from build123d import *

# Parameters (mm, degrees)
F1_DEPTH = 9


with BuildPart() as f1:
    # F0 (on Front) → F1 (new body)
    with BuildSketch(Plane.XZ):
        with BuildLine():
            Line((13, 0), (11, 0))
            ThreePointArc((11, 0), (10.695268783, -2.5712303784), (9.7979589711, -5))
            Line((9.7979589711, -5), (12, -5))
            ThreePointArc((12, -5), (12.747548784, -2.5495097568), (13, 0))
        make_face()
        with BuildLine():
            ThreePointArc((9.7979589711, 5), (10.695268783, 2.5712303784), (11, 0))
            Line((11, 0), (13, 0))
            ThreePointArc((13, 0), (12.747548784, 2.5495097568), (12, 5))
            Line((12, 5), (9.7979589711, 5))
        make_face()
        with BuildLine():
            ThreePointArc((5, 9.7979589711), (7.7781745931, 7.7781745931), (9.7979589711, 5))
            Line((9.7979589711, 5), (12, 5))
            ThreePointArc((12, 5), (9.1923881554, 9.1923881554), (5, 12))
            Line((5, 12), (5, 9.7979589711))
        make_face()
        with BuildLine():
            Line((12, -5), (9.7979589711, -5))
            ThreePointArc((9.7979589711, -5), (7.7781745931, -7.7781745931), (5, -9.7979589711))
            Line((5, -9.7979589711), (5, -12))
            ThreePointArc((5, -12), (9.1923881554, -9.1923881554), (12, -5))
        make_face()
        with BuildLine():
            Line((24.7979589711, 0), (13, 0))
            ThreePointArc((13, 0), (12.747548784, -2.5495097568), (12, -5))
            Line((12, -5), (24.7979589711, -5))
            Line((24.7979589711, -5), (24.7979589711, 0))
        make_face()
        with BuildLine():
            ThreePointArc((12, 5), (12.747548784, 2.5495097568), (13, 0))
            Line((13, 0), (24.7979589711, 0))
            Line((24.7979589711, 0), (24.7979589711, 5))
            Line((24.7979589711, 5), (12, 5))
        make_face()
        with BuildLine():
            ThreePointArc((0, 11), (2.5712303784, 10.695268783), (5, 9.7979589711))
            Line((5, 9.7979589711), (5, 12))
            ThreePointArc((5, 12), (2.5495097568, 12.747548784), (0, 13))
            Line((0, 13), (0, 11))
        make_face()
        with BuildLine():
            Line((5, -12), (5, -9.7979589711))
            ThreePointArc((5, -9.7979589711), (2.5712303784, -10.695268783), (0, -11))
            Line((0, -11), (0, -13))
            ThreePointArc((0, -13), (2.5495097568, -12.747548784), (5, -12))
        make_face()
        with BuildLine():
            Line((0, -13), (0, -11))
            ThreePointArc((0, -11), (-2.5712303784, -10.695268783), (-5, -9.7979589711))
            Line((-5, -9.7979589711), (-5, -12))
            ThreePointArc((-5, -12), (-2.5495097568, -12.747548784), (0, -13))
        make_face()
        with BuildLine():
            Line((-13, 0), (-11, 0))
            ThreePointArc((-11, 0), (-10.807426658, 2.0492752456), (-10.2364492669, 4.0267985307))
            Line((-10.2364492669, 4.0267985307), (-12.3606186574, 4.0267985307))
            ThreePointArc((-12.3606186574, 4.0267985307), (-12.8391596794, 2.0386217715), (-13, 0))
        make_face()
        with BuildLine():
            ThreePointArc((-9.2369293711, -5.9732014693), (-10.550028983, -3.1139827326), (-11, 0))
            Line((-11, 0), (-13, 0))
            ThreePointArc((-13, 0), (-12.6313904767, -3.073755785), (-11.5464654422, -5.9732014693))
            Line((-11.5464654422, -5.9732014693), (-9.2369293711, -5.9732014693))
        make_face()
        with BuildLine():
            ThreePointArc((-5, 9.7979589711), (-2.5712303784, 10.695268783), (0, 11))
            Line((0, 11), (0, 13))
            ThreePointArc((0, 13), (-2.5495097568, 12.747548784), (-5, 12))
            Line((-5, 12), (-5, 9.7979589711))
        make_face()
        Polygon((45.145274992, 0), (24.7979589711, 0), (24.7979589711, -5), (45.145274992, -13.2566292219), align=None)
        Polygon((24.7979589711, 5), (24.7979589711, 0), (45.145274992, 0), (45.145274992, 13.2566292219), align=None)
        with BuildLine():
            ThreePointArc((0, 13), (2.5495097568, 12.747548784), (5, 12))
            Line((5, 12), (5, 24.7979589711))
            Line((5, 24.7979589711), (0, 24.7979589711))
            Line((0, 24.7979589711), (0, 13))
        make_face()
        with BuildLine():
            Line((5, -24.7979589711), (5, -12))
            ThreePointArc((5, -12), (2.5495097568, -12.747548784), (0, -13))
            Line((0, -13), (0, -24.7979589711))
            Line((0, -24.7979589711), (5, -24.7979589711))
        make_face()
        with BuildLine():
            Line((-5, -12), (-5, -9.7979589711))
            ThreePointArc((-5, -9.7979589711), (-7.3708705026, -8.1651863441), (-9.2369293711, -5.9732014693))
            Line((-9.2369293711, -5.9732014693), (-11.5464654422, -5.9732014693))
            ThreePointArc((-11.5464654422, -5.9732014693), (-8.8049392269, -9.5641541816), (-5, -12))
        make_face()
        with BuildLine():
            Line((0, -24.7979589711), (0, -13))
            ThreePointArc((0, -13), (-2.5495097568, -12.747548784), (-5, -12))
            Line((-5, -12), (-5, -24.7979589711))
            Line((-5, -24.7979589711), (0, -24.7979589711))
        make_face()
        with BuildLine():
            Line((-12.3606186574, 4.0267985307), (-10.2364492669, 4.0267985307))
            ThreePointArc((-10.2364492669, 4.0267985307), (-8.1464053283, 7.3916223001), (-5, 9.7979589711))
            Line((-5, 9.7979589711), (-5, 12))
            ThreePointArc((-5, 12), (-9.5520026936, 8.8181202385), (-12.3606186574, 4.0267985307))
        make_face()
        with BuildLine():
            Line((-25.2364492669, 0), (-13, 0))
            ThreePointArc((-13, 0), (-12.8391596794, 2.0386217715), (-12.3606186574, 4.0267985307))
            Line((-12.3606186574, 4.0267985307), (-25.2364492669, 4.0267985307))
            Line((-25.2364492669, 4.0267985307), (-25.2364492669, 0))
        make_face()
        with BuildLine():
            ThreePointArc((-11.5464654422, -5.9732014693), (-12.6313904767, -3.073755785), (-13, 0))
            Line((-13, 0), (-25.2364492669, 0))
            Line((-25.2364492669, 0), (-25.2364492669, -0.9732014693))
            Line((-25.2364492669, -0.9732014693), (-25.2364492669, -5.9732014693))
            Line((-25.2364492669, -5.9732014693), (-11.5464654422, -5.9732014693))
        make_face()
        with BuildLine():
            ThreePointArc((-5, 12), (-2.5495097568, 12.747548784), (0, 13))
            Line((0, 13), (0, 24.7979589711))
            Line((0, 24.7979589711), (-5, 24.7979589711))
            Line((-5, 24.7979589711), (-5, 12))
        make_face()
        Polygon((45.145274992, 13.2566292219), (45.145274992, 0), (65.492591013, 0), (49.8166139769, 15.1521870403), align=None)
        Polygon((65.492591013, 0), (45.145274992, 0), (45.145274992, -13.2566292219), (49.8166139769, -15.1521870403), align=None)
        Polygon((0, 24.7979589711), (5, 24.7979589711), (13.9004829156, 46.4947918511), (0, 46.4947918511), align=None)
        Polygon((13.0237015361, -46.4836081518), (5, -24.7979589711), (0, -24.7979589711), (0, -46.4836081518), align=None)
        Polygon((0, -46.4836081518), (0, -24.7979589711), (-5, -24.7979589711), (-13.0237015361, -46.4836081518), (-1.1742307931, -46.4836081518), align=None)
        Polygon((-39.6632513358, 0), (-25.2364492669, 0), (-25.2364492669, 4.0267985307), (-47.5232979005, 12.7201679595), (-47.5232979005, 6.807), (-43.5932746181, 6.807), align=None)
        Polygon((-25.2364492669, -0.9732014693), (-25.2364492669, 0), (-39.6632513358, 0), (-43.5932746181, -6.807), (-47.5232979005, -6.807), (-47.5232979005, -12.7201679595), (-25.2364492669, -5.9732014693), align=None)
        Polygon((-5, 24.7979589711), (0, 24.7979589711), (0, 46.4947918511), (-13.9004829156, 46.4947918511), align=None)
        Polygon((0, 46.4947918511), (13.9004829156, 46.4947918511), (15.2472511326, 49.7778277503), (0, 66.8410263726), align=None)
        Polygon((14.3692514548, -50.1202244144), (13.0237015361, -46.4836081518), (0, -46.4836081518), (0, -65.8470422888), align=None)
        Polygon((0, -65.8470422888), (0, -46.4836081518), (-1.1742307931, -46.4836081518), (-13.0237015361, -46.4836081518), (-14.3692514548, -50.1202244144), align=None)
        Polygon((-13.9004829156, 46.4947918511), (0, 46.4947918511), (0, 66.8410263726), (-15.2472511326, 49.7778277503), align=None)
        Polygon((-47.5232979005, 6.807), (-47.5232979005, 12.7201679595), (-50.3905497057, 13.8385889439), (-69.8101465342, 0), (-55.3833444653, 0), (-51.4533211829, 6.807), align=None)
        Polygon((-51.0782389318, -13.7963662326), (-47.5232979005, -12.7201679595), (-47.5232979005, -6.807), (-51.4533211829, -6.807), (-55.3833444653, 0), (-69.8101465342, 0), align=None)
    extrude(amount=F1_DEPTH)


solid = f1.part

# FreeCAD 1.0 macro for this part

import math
import FreeCAD as App
import Part
import Sketcher
from FreeCAD import Vector
Q = App.Units.Quantity


def add_polygon(sketch, points):
    """Adds a closed chain of lines whose ends are joined by coincident constraints."""
    first, n = sketch.GeometryCount, len(points)
    for a, b in zip(points, points[1:] + points[:1]):
        sketch.addGeometry(Part.LineSegment(App.Vector(*a, 0), App.Vector(*b, 0)), False)
    for i in range(n):
        sketch.addConstraint(Sketcher.Constraint("Coincident", first + i, 2, first + (i + 1) % n, 1))

doc = App.newDocument("Part")
body = doc.addObject("PartDesign::Body", "Body")

sketch1 = doc.addObject("Sketcher::SketchObject", "Sketch")
body.addObject(sketch1)
sketch1.AttachmentSupport = (doc.XZ_Plane, [""])
sketch1.MapMode = "FlatFace"
sketch1.addGeometry(Part.ArcOfCircle(Part.Circle(Vector(0, 0, 0), Vector(0, 0, 1), 13), math.radians(-153), math.radians(-113)), False)
sketch1.addGeometry(Part.LineSegment(Vector(-5, -12, 0), Vector(-5, -24.8, 0)), False)
sketch1.addGeometry(Part.LineSegment(Vector(-5, -24.8, 0), Vector(-13, -46.5, 0)), False)
sketch1.addGeometry(Part.LineSegment(Vector(-13, -46.5, 0), Vector(-14.4, -50.1, 0)), False)
sketch1.addGeometry(Part.LineSegment(Vector(-14.4, -50.1, 0), Vector(0, -65.8, 0)), False)
sketch1.addGeometry(Part.LineSegment(Vector(0, -65.8, 0), Vector(14.4, -50.1, 0)), False)
sketch1.addGeometry(Part.LineSegment(Vector(14.4, -50.1, 0), Vector(13, -46.5, 0)), False)
sketch1.addGeometry(Part.LineSegment(Vector(13, -46.5, 0), Vector(5, -24.8, 0)), False)
sketch1.addGeometry(Part.LineSegment(Vector(5, -24.8, 0), Vector(5, -12, 0)), False)
sketch1.addGeometry(Part.ArcOfCircle(Part.Circle(Vector(0, 0, 0), Vector(0, 0, 1), 13), math.radians(-67), math.radians(-23)), False)
sketch1.addGeometry(Part.LineSegment(Vector(12, -5, 0), Vector(24.8, -5, 0)), False)
sketch1.addGeometry(Part.LineSegment(Vector(24.8, -5, 0), Vector(45.1, -13.3, 0)), False)
sketch1.addGeometry(Part.LineSegment(Vector(45.1, -13.3, 0), Vector(49.8, -15.2, 0)), False)
sketch1.addGeometry(Part.LineSegment(Vector(49.8, -15.2, 0), Vector(65.5, 0, 0)), False)
sketch1.addGeometry(Part.LineSegment(Vector(65.5, 0, 0), Vector(49.8, 15.2, 0)), False)
sketch1.addGeometry(Part.LineSegment(Vector(49.8, 15.2, 0), Vector(45.1, 13.3, 0)), False)
sketch1.addGeometry(Part.LineSegment(Vector(45.1, 13.3, 0), Vector(24.8, 5, 0)), False)
sketch1.addGeometry(Part.LineSegment(Vector(24.8, 5, 0), Vector(12, 5, 0)), False)
sketch1.addGeometry(Part.ArcOfCircle(Part.Circle(Vector(0, 0, 0), Vector(0, 0, 1), 13), math.radians(23), math.radians(67)), False)
sketch1.addGeometry(Part.LineSegment(Vector(5, 12, 0), Vector(5, 24.8, 0)), False)
sketch1.addGeometry(Part.LineSegment(Vector(5, 24.8, 0), Vector(13.9, 46.5, 0)), False)
sketch1.addGeometry(Part.LineSegment(Vector(13.9, 46.5, 0), Vector(15.2, 49.8, 0)), False)
sketch1.addGeometry(Part.LineSegment(Vector(15.2, 49.8, 0), Vector(0, 66.8, 0)), False)
sketch1.addGeometry(Part.LineSegment(Vector(0, 66.8, 0), Vector(-15.2, 49.8, 0)), False)
sketch1.addGeometry(Part.LineSegment(Vector(-15.2, 49.8, 0), Vector(-13.9, 46.5, 0)), False)
sketch1.addGeometry(Part.LineSegment(Vector(-13.9, 46.5, 0), Vector(-5, 24.8, 0)), False)
sketch1.addGeometry(Part.LineSegment(Vector(-5, 24.8, 0), Vector(-5, 12, 0)), False)
sketch1.addGeometry(Part.ArcOfCircle(Part.Circle(Vector(0, 0, 0), Vector(0, 0, 1), 13), math.radians(113), math.radians(162)), False)
sketch1.addGeometry(Part.LineSegment(Vector(-12.4, 4, 0), Vector(-25.2, 4, 0)), False)
sketch1.addGeometry(Part.LineSegment(Vector(-25.2, 4, 0), Vector(-50.4, 13.8, 0)), False)
sketch1.addGeometry(Part.LineSegment(Vector(-50.4, 13.8, 0), Vector(-69.8, 0, 0)), False)
sketch1.addGeometry(Part.LineSegment(Vector(-69.8, 0, 0), Vector(-51.1, -13.8, 0)), False)
sketch1.addGeometry(Part.LineSegment(Vector(-51.1, -13.8, 0), Vector(-47.5, -12.7, 0)), False)
sketch1.addGeometry(Part.LineSegment(Vector(-47.5, -12.7, 0), Vector(-25.2, -6, 0)), False)
sketch1.addGeometry(Part.LineSegment(Vector(-25.2, -6, 0), Vector(-11.5, -6, 0)), False)
sketch1.addGeometry(Part.ArcOfCircle(Part.Circle(Vector(0, 0, 0), Vector(0, 0, 1), 11), math.radians(-27), math.radians(0)), False)
sketch1.addGeometry(Part.ArcOfCircle(Part.Circle(Vector(0, 0, 0), Vector(0, 0, 1), 11), math.radians(-63), math.radians(-27)), False)
sketch1.addGeometry(Part.ArcOfCircle(Part.Circle(Vector(0, 0, 0), Vector(0, 0, 1), 11), math.radians(-90), math.radians(-63)), False)
sketch1.addGeometry(Part.ArcOfCircle(Part.Circle(Vector(0, 0, 0), Vector(0, 0, 1), 11), math.radians(-117), math.radians(-90)), False)
sketch1.addGeometry(Part.ArcOfCircle(Part.Circle(Vector(0, 0, 0), Vector(0, 0, 1), 11), math.radians(-147), math.radians(-117)), False)
sketch1.addGeometry(Part.ArcOfCircle(Part.Circle(Vector(0, 0, 0), Vector(0, 0, 1), 11), math.radians(180), math.radians(213)), False)
sketch1.addGeometry(Part.ArcOfCircle(Part.Circle(Vector(0, 0, 0), Vector(0, 0, 1), 11), math.radians(159), math.radians(180)), False)
sketch1.addGeometry(Part.ArcOfCircle(Part.Circle(Vector(0, 0, 0), Vector(0, 0, 1), 11), math.radians(117), math.radians(159)), False)
sketch1.addGeometry(Part.ArcOfCircle(Part.Circle(Vector(0, 0, 0), Vector(0, 0, 1), 11), math.radians(90), math.radians(117)), False)
sketch1.addGeometry(Part.ArcOfCircle(Part.Circle(Vector(0, 0, 0), Vector(0, 0, 1), 11), math.radians(63), math.radians(90)), False)
sketch1.addGeometry(Part.ArcOfCircle(Part.Circle(Vector(0, 0, 0), Vector(0, 0, 1), 11), math.radians(27), math.radians(63)), False)
sketch1.addGeometry(Part.ArcOfCircle(Part.Circle(Vector(0, 0, 0), Vector(0, 0, 1), 11), math.radians(0), math.radians(27)), False)
add_polygon(sketch1, [(-55.4, 0), (-51.5, 6.8), (-43.6, 6.8), (-39.7, 0), (-43.6, -6.8), (-51.5, -6.8)])
sketch1.addConstraint(Sketcher.Constraint("Coincident", 0, 2, 1, 1))
sketch1.addConstraint(Sketcher.Constraint("Coincident", 1, 2, 2, 1))
sketch1.addConstraint(Sketcher.Constraint("Coincident", 2, 2, 3, 1))
sketch1.addConstraint(Sketcher.Constraint("Coincident", 3, 2, 4, 1))
sketch1.addConstraint(Sketcher.Constraint("Coincident", 4, 2, 5, 1))
sketch1.addConstraint(Sketcher.Constraint("Coincident", 5, 2, 6, 1))
sketch1.addConstraint(Sketcher.Constraint("Coincident", 6, 2, 7, 1))
sketch1.addConstraint(Sketcher.Constraint("Coincident", 7, 2, 8, 1))
sketch1.addConstraint(Sketcher.Constraint("Coincident", 8, 2, 9, 1))
sketch1.addConstraint(Sketcher.Constraint("Coincident", 9, 2, 10, 1))
sketch1.addConstraint(Sketcher.Constraint("Coincident", 10, 2, 11, 1))
sketch1.addConstraint(Sketcher.Constraint("Coincident", 11, 2, 12, 1))
sketch1.addConstraint(Sketcher.Constraint("Coincident", 12, 2, 13, 1))
sketch1.addConstraint(Sketcher.Constraint("Coincident", 13, 2, 14, 1))
sketch1.addConstraint(Sketcher.Constraint("Coincident", 14, 2, 15, 1))
sketch1.addConstraint(Sketcher.Constraint("Coincident", 15, 2, 16, 1))
sketch1.addConstraint(Sketcher.Constraint("Coincident", 16, 2, 17, 1))
sketch1.addConstraint(Sketcher.Constraint("Coincident", 17, 2, 18, 1))
sketch1.addConstraint(Sketcher.Constraint("Coincident", 18, 2, 19, 1))
sketch1.addConstraint(Sketcher.Constraint("Coincident", 19, 2, 20, 1))
sketch1.addConstraint(Sketcher.Constraint("Coincident", 20, 2, 21, 1))
sketch1.addConstraint(Sketcher.Constraint("Coincident", 21, 2, 22, 1))
sketch1.addConstraint(Sketcher.Constraint("Coincident", 22, 2, 23, 1))
sketch1.addConstraint(Sketcher.Constraint("Coincident", 23, 2, 24, 1))
sketch1.addConstraint(Sketcher.Constraint("Coincident", 24, 2, 25, 1))
sketch1.addConstraint(Sketcher.Constraint("Coincident", 25, 2, 26, 1))
sketch1.addConstraint(Sketcher.Constraint("Coincident", 26, 2, 27, 1))
sketch1.addConstraint(Sketcher.Constraint("Coincident", 27, 2, 28, 1))
sketch1.addConstraint(Sketcher.Constraint("Coincident", 28, 2, 29, 1))
sketch1.addConstraint(Sketcher.Constraint("Coincident", 29, 2, 30, 1))
sketch1.addConstraint(Sketcher.Constraint("Coincident", 30, 2, 31, 1))
sketch1.addConstraint(Sketcher.Constraint("Coincident", 31, 2, 32, 1))
sketch1.addConstraint(Sketcher.Constraint("Coincident", 32, 2, 33, 1))
sketch1.addConstraint(Sketcher.Constraint("Coincident", 33, 2, 34, 1))
sketch1.addConstraint(Sketcher.Constraint("Coincident", 34, 2, 0, 1))
sketch1.addConstraint(Sketcher.Constraint("Tangent", 35, 1, 36, 2))
sketch1.addConstraint(Sketcher.Constraint("Tangent", 36, 1, 37, 2))
sketch1.addConstraint(Sketcher.Constraint("Tangent", 37, 1, 38, 2))
sketch1.addConstraint(Sketcher.Constraint("Tangent", 38, 1, 39, 2))
sketch1.addConstraint(Sketcher.Constraint("Tangent", 39, 1, 40, 2))
sketch1.addConstraint(Sketcher.Constraint("Tangent", 40, 1, 41, 2))
sketch1.addConstraint(Sketcher.Constraint("Tangent", 41, 1, 42, 2))
sketch1.addConstraint(Sketcher.Constraint("Tangent", 42, 1, 43, 2))
sketch1.addConstraint(Sketcher.Constraint("Tangent", 43, 1, 44, 2))
sketch1.addConstraint(Sketcher.Constraint("Tangent", 44, 1, 45, 2))
sketch1.addConstraint(Sketcher.Constraint("Tangent", 45, 1, 46, 2))
sketch1.addConstraint(Sketcher.Constraint("Tangent", 46, 1, 35, 2))
sketch1.addConstraint(Sketcher.Constraint("Vertical", 1))
sketch1.addConstraint(Sketcher.Constraint("Vertical", 8))
sketch1.addConstraint(Sketcher.Constraint("Horizontal", 10))
sketch1.addConstraint(Sketcher.Constraint("Horizontal", 17))
sketch1.addConstraint(Sketcher.Constraint("Vertical", 19))
sketch1.addConstraint(Sketcher.Constraint("Vertical", 26))
sketch1.addConstraint(Sketcher.Constraint("Horizontal", 28))
sketch1.addConstraint(Sketcher.Constraint("Horizontal", 34))
sketch1.addConstraint(Sketcher.Constraint("Horizontal", 48))
sketch1.addConstraint(Sketcher.Constraint("Horizontal", 51))
sketch1.addConstraint(Sketcher.Constraint("Coincident", 0, 3, -1, 1))
sketch1.addConstraint(Sketcher.Constraint("Coincident", 9, 3, -1, 1))
sketch1.addConstraint(Sketcher.Constraint("Coincident", 18, 3, -1, 1))
sketch1.addConstraint(Sketcher.Constraint("Coincident", 27, 3, -1, 1))
sketch1.addConstraint(Sketcher.Constraint("Coincident", 35, 3, -1, 1))
sketch1.addConstraint(Sketcher.Constraint("Coincident", 37, 3, -1, 1))
sketch1.addConstraint(Sketcher.Constraint("Coincident", 39, 3, -1, 1))
sketch1.addConstraint(Sketcher.Constraint("Coincident", 41, 3, -1, 1))
sketch1.addConstraint(Sketcher.Constraint("Coincident", 43, 3, -1, 1))
sketch1.addConstraint(Sketcher.Constraint("Equal", 0, 9))
sketch1.addConstraint(Sketcher.Constraint("Equal", 9, 18))
sketch1.addConstraint(Sketcher.Constraint("Equal", 18, 27))
sketch1.addConstraint(Sketcher.Constraint("Equal", 43, 44))
sketch1.addConstraint(Sketcher.Constraint("Symmetric", 1, 2, 19, 2, -1, 1))
sketch1.addConstraint(Sketcher.Constraint("Symmetric", 7, 2, 25, 2, -1, 1))
sketch1.addConstraint(Sketcher.Constraint("Symmetric", 3, 2, 5, 2, -2))
sketch1.addConstraint(Sketcher.Constraint("Symmetric", 2, 2, 6, 2, -2))
sketch1.addConstraint(Sketcher.Constraint("Symmetric", 1, 2, 7, 2, -2))
sketch1.addConstraint(Sketcher.Constraint("Symmetric", 21, 2, 23, 2, -2))
sketch1.addConstraint(Sketcher.Constraint("Symmetric", 20, 2, 24, 2, -2))
sketch1.addConstraint(Sketcher.Constraint("Symmetric", 12, 2, 14, 2, -1))
sketch1.addConstraint(Sketcher.Constraint("Symmetric", 11, 2, 15, 2, -1))
sketch1.addConstraint(Sketcher.Constraint("Symmetric", 10, 2, 16, 2, -1))
sketch1.addConstraint(Sketcher.Constraint("Symmetric", 48, 2, 50, 2, -1))
sketch1.addConstraint(Sketcher.Constraint("PointOnObject", 4, 2, -2))
sketch1.addConstraint(Sketcher.Constraint("PointOnObject", 13, 2, -1))
sketch1.addConstraint(Sketcher.Constraint("PointOnObject", 22, 2, -2))
sketch1.addConstraint(Sketcher.Constraint("PointOnObject", 30, 2, -1))
sketch1.addConstraint(Sketcher.Constraint("PointOnObject", 37, 1, -2))
sketch1.addConstraint(Sketcher.Constraint("PointOnObject", 40, 1, -1))
sketch1.addConstraint(Sketcher.Constraint("PointOnObject", 43, 1, -2))
sketch1.addConstraint(Sketcher.Constraint("PointOnObject", 46, 1, -1))
sketch1.addConstraint(Sketcher.Constraint("PointOnObject", 49, 2, -1))
sketch1.addConstraint(Sketcher.Constraint("PointOnObject", 52, 2, -1))
sketch1.addConstraint(Sketcher.Constraint("Parallel", 2, 3))
sketch1.addConstraint(Sketcher.Constraint("Parallel", 11, 12))
sketch1.addConstraint(Sketcher.Constraint("Parallel", 20, 21))
sketch1.addConstraint(Sketcher.Constraint("Parallel", 32, 33))
sketch1.addConstraint(Sketcher.Constraint("Parallel", 47, 50))
sketch1.addConstraint(Sketcher.Constraint("Parallel", 49, 52))
sketch1.addConstraint(Sketcher.Constraint("Horizontal", 10, 2, 35, 1))
sketch1.addConstraint(Sketcher.Constraint("Horizontal", 36, 1, 38, 1))
sketch1.addConstraint(Sketcher.Constraint("Horizontal", 34, 2, 39, 1))
sketch1.addConstraint(Sketcher.Constraint("Horizontal", 28, 2, 41, 1))
sketch1.addConstraint(Sketcher.Constraint("Horizontal", 42, 1, 44, 1))
sketch1.addConstraint(Sketcher.Constraint("Horizontal", 17, 2, 45, 1))
sketch1.addConstraint(Sketcher.Constraint("Vertical", 28, 2, 33, 2))
sketch1.addConstraint(Sketcher.Constraint("Vertical", 19, 2, 36, 1))
sketch1.addConstraint(Sketcher.Constraint("Vertical", 38, 1, 42, 1))
sketch1.addConstraint(Sketcher.Constraint("Equal", 17, 1))
sketch1.addConstraint(Sketcher.Constraint("Radius", 0, 13.0))
sketch1.addConstraint(Sketcher.Constraint("Radius", 35, 11.0))
sketch1.addConstraint(Sketcher.Constraint("Angle", 47, Q("60 deg")))
sketch1.addConstraint(Sketcher.Constraint("Distance", 29, 27.0))
sketch1.addConstraint(Sketcher.Constraint("DistanceX", 0, 2, -1, 1, 5.0))
sketch1.addConstraint(Sketcher.Constraint("DistanceX", -1, 1, 9, 2, 12.0))
sketch1.addConstraint(Sketcher.Constraint("DistanceY", -1, 1, 47, 2, 6.807))
sketch1.addConstraint(Sketcher.Constraint("DistanceX", 10, 1, 10, 2, 12.797959))
sketch1.addConstraint(Sketcher.Constraint("DistanceX", 28, 2, 28, 1, 12.875831))
sketch1.addConstraint(Sketcher.Constraint("DistanceX", 2, 2, -1, 1, 13.023702))
sketch1.addConstraint(Sketcher.Constraint("DistanceY", -1, 1, 27, 2, 4.026799))
sketch1.addConstraint(Sketcher.Constraint("DistanceY", 33, 2, -1, 1, 5.973201))
sketch1.addConstraint(Sketcher.Constraint("Distance", 2, 23.122439))
sketch1.addConstraint(Sketcher.Constraint("Distance", 3, 3.877561))
sketch1.addConstraint(Sketcher.Constraint("Distance", 13, 21.80195))
sketch1.addConstraint(Sketcher.Constraint("Distance", 32, 3.714271))
sketch1.addConstraint(Sketcher.Constraint("Distance", 33, 23.285729))
sketch1.addConstraint(Sketcher.Constraint("DistanceX", 48, 1, 48, 2, 7.860047))
sketch1.addConstraint(Sketcher.Constraint("DistanceY", 11, 2, -1, 1, 13.256629))
sketch1.addConstraint(Sketcher.Constraint("DistanceX", -1, 1, 13, 2, 65.492591))
sketch1.addConstraint(Sketcher.Constraint("DistanceY", -1, 1, 20, 2, 46.494792))
sketch1.addConstraint(Sketcher.Constraint("DistanceX", -1, 1, 21, 2, 15.247251))
sketch1.addConstraint(Sketcher.Constraint("DistanceX", 29, 2, -1, 1, 50.39055))
sketch1.addConstraint(Sketcher.Constraint("DistanceX", 31, 2, -1, 1, 51.078239))
sketch1.addConstraint(Sketcher.Constraint("DistanceX", 47, 2, -1, 1, 51.453321))
sketch1.addConstraint(Sketcher.Constraint("Distance", 4, 21.302774))
sketch1.addConstraint(Sketcher.Constraint("Distance", 11, 21.958716))
sketch1.addConstraint(Sketcher.Constraint("Distance", 20, 23.451464))
sketch1.addConstraint(Sketcher.Constraint("Distance", 22, 22.882994))
sketch1.addConstraint(Sketcher.Constraint("Distance", 30, 23.845907))
pad1 = doc.addObject("PartDesign::Pad", "Pad")
body.addObject(pad1)
pad1.Profile = sketch1
pad1.Length = 9

doc.recompute()
